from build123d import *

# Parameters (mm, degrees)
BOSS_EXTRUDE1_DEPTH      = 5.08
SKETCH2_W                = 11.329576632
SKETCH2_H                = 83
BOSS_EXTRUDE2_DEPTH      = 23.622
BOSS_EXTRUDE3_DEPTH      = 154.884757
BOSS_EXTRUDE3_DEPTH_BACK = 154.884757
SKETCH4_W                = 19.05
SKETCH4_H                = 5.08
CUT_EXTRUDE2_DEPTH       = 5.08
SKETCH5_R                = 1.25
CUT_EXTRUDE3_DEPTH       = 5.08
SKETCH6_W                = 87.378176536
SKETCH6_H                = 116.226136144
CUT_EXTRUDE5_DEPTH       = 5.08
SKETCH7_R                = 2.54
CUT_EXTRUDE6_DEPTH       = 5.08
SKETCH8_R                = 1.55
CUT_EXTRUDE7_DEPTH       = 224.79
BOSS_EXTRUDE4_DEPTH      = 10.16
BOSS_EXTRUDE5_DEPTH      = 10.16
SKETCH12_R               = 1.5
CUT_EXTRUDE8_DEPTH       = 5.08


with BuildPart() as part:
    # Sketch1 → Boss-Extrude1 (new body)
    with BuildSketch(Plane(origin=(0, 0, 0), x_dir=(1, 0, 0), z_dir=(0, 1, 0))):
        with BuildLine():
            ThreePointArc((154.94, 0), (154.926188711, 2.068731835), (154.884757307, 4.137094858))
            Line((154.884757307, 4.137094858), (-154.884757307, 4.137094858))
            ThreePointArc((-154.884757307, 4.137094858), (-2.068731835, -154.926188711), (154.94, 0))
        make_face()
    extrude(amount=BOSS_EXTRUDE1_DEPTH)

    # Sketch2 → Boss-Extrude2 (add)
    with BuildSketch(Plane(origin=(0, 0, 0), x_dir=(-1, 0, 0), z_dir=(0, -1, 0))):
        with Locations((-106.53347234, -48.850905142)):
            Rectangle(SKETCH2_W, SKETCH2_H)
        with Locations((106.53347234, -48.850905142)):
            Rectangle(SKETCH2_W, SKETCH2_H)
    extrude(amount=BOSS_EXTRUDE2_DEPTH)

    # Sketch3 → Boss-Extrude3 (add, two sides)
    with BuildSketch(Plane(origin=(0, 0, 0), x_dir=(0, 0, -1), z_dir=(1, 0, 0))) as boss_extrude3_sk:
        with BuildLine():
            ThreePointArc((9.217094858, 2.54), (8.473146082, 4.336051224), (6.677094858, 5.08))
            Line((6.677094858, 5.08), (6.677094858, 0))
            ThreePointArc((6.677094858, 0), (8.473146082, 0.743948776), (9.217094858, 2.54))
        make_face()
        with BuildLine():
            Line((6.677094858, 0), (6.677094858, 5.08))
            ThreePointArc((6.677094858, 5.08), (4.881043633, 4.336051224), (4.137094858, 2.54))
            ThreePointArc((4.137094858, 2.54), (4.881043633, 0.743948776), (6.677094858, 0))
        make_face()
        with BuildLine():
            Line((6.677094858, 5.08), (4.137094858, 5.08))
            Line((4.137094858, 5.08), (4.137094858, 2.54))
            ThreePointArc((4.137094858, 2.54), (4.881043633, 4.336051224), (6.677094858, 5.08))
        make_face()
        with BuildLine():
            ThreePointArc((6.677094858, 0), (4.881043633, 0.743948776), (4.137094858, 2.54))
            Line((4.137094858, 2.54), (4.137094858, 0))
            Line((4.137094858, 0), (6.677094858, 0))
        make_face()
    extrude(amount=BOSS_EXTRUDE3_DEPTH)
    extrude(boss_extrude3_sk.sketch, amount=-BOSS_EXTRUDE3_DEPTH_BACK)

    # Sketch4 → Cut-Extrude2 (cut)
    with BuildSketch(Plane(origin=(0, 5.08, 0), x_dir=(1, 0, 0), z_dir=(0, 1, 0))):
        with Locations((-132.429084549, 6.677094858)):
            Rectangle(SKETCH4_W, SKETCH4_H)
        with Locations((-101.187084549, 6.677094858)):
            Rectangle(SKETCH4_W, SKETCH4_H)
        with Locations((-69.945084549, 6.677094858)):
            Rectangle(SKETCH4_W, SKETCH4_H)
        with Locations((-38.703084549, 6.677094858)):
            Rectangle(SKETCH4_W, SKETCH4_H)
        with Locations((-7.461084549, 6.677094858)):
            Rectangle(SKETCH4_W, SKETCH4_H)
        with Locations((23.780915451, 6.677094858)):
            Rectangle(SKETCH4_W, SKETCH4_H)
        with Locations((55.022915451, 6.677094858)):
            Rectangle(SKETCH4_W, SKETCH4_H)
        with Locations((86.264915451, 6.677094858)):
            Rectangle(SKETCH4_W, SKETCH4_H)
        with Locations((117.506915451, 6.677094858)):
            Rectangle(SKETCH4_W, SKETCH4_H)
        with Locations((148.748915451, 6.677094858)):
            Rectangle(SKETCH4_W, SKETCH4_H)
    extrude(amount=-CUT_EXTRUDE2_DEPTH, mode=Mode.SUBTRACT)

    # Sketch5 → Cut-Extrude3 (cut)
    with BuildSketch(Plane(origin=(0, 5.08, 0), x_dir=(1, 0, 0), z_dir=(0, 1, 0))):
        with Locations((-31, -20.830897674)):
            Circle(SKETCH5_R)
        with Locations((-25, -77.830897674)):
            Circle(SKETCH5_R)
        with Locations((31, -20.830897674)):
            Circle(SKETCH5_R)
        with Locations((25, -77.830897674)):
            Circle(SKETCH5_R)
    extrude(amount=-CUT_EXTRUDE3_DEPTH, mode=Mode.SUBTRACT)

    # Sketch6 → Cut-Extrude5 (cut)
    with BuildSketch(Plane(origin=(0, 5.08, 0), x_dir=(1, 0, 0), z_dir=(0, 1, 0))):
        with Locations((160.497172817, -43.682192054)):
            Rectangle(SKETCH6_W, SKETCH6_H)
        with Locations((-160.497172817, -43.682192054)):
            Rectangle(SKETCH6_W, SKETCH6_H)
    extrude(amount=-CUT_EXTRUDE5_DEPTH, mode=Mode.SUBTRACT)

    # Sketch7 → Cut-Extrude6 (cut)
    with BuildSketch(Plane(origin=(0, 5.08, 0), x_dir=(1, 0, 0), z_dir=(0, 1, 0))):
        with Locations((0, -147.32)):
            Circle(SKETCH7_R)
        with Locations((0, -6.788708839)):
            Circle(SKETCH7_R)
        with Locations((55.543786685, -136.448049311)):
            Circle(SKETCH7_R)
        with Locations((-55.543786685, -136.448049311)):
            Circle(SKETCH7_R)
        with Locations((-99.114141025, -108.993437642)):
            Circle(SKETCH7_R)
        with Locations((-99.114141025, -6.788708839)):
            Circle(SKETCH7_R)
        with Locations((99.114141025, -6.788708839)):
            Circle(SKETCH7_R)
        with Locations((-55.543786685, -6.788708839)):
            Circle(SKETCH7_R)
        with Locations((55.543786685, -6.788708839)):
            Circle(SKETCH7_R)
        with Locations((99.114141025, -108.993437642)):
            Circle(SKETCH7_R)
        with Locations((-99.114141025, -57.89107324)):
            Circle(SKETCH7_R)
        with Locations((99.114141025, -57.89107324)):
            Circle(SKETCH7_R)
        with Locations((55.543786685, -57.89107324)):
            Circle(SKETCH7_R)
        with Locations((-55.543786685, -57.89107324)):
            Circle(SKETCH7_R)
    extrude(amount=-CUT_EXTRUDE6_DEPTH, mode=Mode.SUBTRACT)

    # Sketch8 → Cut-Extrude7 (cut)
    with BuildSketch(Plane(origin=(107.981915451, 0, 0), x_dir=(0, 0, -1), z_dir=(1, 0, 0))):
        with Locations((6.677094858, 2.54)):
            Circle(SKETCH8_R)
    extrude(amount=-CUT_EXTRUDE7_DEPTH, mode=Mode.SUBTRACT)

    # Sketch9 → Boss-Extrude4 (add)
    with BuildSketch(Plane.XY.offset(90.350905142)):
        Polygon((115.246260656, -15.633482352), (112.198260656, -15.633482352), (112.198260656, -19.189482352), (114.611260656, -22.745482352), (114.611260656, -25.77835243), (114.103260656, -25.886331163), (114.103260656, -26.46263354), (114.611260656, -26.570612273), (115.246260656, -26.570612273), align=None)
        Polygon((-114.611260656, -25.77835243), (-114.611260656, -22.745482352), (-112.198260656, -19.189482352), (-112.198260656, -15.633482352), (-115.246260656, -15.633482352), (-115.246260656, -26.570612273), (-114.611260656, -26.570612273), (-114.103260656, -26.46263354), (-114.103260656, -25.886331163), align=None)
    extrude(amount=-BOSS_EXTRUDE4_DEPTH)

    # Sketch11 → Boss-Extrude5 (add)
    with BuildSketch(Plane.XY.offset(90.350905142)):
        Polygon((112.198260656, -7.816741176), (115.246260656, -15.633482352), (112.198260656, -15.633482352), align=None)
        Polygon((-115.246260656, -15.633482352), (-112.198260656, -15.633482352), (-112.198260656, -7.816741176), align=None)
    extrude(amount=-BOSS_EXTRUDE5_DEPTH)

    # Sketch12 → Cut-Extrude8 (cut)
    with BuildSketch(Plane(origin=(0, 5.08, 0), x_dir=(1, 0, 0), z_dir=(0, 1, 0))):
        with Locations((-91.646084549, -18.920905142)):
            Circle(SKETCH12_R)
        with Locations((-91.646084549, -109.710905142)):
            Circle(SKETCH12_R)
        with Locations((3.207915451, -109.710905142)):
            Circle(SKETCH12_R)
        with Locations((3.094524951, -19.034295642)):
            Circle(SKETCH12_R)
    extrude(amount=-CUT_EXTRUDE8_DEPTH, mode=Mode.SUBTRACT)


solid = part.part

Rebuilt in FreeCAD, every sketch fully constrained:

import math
import FreeCAD as App
import Part
import Sketcher
from FreeCAD import Vector
Q = App.Units.Quantity

doc = App.newDocument("Part")
body = doc.addObject("PartDesign::Body", "Body")

# Sketch on XZ plane
sketch1 = body.newObject("Sketcher::SketchObject", "Sketch")
sketch1.AttachmentSupport = (doc.getObject("XZ_Plane"), [""])
sketch1.MapMode = "FlatFace"
sketch1.addGeometry(Part.ArcOfCircle(Part.Circle(Vector(0, 0, 0), Vector(0, 0, 1), 154.9), math.radians(-1.53), math.radians(0)), False)
sketch1.addGeometry(Part.LineSegment(Vector(154.9, -4.1, 0), Vector(-154.9, -4.1, 0)), False)
sketch1.addGeometry(Part.ArcOfCircle(Part.Circle(Vector(0, 0, 0), Vector(0, 0, 1), 154.9), math.radians(0), math.radians(182)), False)
sketch1.addConstraint(Sketcher.Constraint("Coincident", 0, 1, 1, 1))
sketch1.addConstraint(Sketcher.Constraint("Coincident", 1, 2, 2, 2))
sketch1.addConstraint(Sketcher.Constraint("Tangent", 2, 1, 0, 2))
sketch1.addConstraint(Sketcher.Constraint("Horizontal", 1))
sketch1.addConstraint(Sketcher.Constraint("Coincident", 0, 3, -1, 1))
sketch1.addConstraint(Sketcher.Constraint("Equal", 0, 2))
sketch1.addConstraint(Sketcher.Constraint("PointOnObject", 2, 1, -1))
sketch1.addConstraint(Sketcher.Constraint("Radius", 0, Q("6.1 in")))
sketch1.addConstraint(Sketcher.Constraint("DistanceX", 1, 2, 1, 1, Q("309.769515 mm")))
pad1 = body.newObject("PartDesign::Pad", "Pad")
pad1.Profile = sketch1
pad1.Length = Q("0.2 in")
pad1.Reversed = True

# Sketch on XZ plane
sketch2 = body.newObject("Sketcher::SketchObject", "Sketch001")
sketch2.AttachmentSupport = (doc.getObject("XZ_Plane"), [""])
sketch2.MapMode = "FlatFace"
sketch2.addGeometry(Part.LineSegment(Vector(112, 7, 0), Vector(112, 90, 0)), False)
sketch2.addGeometry(Part.LineSegment(Vector(112, 90, 0), Vector(101, 90, 0)), False)
sketch2.addGeometry(Part.LineSegment(Vector(101, 90, 0), Vector(101, 7, 0)), False)
sketch2.addGeometry(Part.LineSegment(Vector(101, 7, 0), Vector(112, 7, 0)), False)
sketch2.addGeometry(Part.LineSegment(Vector(-101, 7, 0), Vector(-101, 90, 0)), False)
sketch2.addGeometry(Part.LineSegment(Vector(-101, 90, 0), Vector(-112, 90, 0)), False)
sketch2.addGeometry(Part.LineSegment(Vector(-112, 90, 0), Vector(-112, 7, 0)), False)
sketch2.addGeometry(Part.LineSegment(Vector(-112, 7, 0), Vector(-101, 7, 0)), False)
sketch2.addConstraint(Sketcher.Constraint("Coincident", 0, 2, 1, 1))
sketch2.addConstraint(Sketcher.Constraint("Coincident", 1, 2, 2, 1))
sketch2.addConstraint(Sketcher.Constraint("Coincident", 2, 2, 3, 1))
sketch2.addConstraint(Sketcher.Constraint("Coincident", 3, 2, 0, 1))
sketch2.addConstraint(Sketcher.Constraint("Coincident", 4, 2, 5, 1))
sketch2.addConstraint(Sketcher.Constraint("Coincident", 5, 2, 6, 1))
sketch2.addConstraint(Sketcher.Constraint("Coincident", 6, 2, 7, 1))
sketch2.addConstraint(Sketcher.Constraint("Coincident", 7, 2, 4, 1))
sketch2.addConstraint(Sketcher.Constraint("Vertical", 0))
sketch2.addConstraint(Sketcher.Constraint("Horizontal", 1))
sketch2.addConstraint(Sketcher.Constraint("Vertical", 2))
sketch2.addConstraint(Sketcher.Constraint("Horizontal", 3))
sketch2.addConstraint(Sketcher.Constraint("Vertical", 4))
sketch2.addConstraint(Sketcher.Constraint("Horizontal", 5))
sketch2.addConstraint(Sketcher.Constraint("Vertical", 6))
sketch2.addConstraint(Sketcher.Constraint("Horizontal", 7))
sketch2.addConstraint(Sketcher.Constraint("Symmetric", 1, 2, 4, 2, -2))
sketch2.addConstraint(Sketcher.Constraint("Symmetric", 3, 2, 6, 2, -2))
sketch2.addConstraint(Sketcher.Constraint("DistanceY", 0, 1, 0, 2, Q("83 mm")))
sketch2.addConstraint(Sketcher.Constraint("DistanceX", 1, 2, 1, 1, Q("11.329577 mm")))
sketch2.addConstraint(Sketcher.Constraint("DistanceX", -1, 1, 0, 2, Q("112.198261 mm")))
sketch2.addConstraint(Sketcher.Constraint("DistanceY", -1, 1, 0, 2, Q("90.350905 mm")))
pad2 = body.newObject("PartDesign::Pad", "Pad001")
pad2.Profile = sketch2
pad2.Length = Q("0.93 in")

# Sketch on YZ plane
sketch3 = body.newObject("Sketcher::SketchObject", "Sketch002")
sketch3.AttachmentSupport = (doc.getObject("YZ_Plane"), [""])
sketch3.MapMode = "FlatFace"
sketch3.addGeometry(Part.ArcOfCircle(Part.Circle(Vector(2.5, -6.7, 0), Vector(0, 0, 1), 2.5), math.radians(-90), math.radians(0)), False)
sketch3.addGeometry(Part.LineSegment(Vector(5.1, -6.7, 0), Vector(5.1, -4.1, 0)), False)
sketch3.addGeometry(Part.LineSegment(Vector(5.1, -4.1, 0), Vector(0, -4.1, 0)), False)
sketch3.addGeometry(Part.LineSegment(Vector(0, -4.1, 0), Vector(0, -6.7, 0)), False)
sketch3.addGeometry(Part.ArcOfCircle(Part.Circle(Vector(2.5, -6.7, 0), Vector(0, 0, 1), 2.5), math.radians(-180), math.radians(-90)), False)
sketch3.addConstraint(Sketcher.Constraint("Tangent", 0, 2, 1, 1))
sketch3.addConstraint(Sketcher.Constraint("Coincident", 1, 2, 2, 1))
sketch3.addConstraint(Sketcher.Constraint("Coincident", 2, 2, 3, 1))
sketch3.addConstraint(Sketcher.Constraint("Tangent", 3, 2, 4, 1))
sketch3.addConstraint(Sketcher.Constraint("Tangent", 4, 2, 0, 1))
sketch3.addConstraint(Sketcher.Constraint("Vertical", 1))
sketch3.addConstraint(Sketcher.Constraint("Horizontal", 2))
sketch3.addConstraint(Sketcher.Constraint("Vertical", 3))
sketch3.addConstraint(Sketcher.Constraint("Equal", 0, 4))
sketch3.addConstraint(Sketcher.Constraint("PointOnObject", 2, 2, -2))
sketch3.addConstraint(Sketcher.Constraint("Vertical", 0, 3, 4, 2))
sketch3.addConstraint(Sketcher.Constraint("Radius", 0, Q("0.1 in")))
sketch3.addConstraint(Sketcher.Constraint("DistanceY", 1, 1, 1, 2, Q("0.1 in")))
sketch3.addConstraint(Sketcher.Constraint("DistanceY", 0, 3, -1, 1, Q("6.677095 mm")))
pad3 = body.newObject("PartDesign::Pad", "Pad002")
pad3.Profile = sketch3
pad3.Type = "TwoLengths"
pad3.Length = 154.884757
pad3.Length2 = 154.884757

# Sketch on XZ plane
sketch4 = body.newObject("Sketcher::SketchObject", "Sketch003")
sketch4.AttachmentSupport = (doc.getObject("XZ_Plane"), [""])
sketch4.MapMode = "FlatFace"
sketch4.AttachmentOffset = App.Placement(Vector(0, 0, -0.2 * 25.4), App.Rotation())
sketch4.addGeometry(Part.LineSegment(Vector(-142, -9, 0), Vector(-142, -4, 0)), False)
sketch4.addGeometry(Part.LineSegment(Vector(-142, -4, 0), Vector(-123, -4, 0)), False)
sketch4.addGeometry(Part.LineSegment(Vector(-123, -4, 0), Vector(-123, -9, 0)), False)
sketch4.addGeometry(Part.LineSegment(Vector(-123, -9, 0), Vector(-142, -9, 0)), False)
sketch4.addGeometry(Part.LineSegment(Vector(-111, -9, 0), Vector(-111, -4, 0)), False)
sketch4.addGeometry(Part.LineSegment(Vector(-111, -4, 0), Vector(-92, -4, 0)), False)
sketch4.addGeometry(Part.LineSegment(Vector(-92, -4, 0), Vector(-92, -9, 0)), False)
sketch4.addGeometry(Part.LineSegment(Vector(-92, -9, 0), Vector(-111, -9, 0)), False)
sketch4.addGeometry(Part.LineSegment(Vector(-79, -9, 0), Vector(-79, -4, 0)), False)
sketch4.addGeometry(Part.LineSegment(Vector(-79, -4, 0), Vector(-60, -4, 0)), False)
sketch4.addGeometry(Part.LineSegment(Vector(-60, -4, 0), Vector(-60, -9, 0)), False)
sketch4.addGeometry(Part.LineSegment(Vector(-60, -9, 0), Vector(-79, -9, 0)), False)
sketch4.addGeometry(Part.LineSegment(Vector(-48, -9, 0), Vector(-48, -4, 0)), False)
sketch4.addGeometry(Part.LineSegment(Vector(-48, -4, 0), Vector(-29, -4, 0)), False)
sketch4.addGeometry(Part.LineSegment(Vector(-29, -4, 0), Vector(-29, -9, 0)), False)
sketch4.addGeometry(Part.LineSegment(Vector(-29, -9, 0), Vector(-48, -9, 0)), False)
sketch4.addGeometry(Part.LineSegment(Vector(-17, -9, 0), Vector(-17, -4, 0)), False)
sketch4.addGeometry(Part.LineSegment(Vector(-17, -4, 0), Vector(2, -4, 0)), False)
sketch4.addGeometry(Part.LineSegment(Vector(2, -4, 0), Vector(2, -9, 0)), False)
sketch4.addGeometry(Part.LineSegment(Vector(2, -9, 0), Vector(-17, -9, 0)), False)
sketch4.addGeometry(Part.LineSegment(Vector(14, -9, 0), Vector(14, -4, 0)), False)
sketch4.addGeometry(Part.LineSegment(Vector(14, -4, 0), Vector(33, -4, 0)), False)
sketch4.addGeometry(Part.LineSegment(Vector(33, -4, 0), Vector(33, -9, 0)), False)
sketch4.addGeometry(Part.LineSegment(Vector(33, -9, 0), Vector(14, -9, 0)), False)
sketch4.addGeometry(Part.LineSegment(Vector(45, -9, 0), Vector(45, -4, 0)), False)
sketch4.addGeometry(Part.LineSegment(Vector(45, -4, 0), Vector(65, -4, 0)), False)
sketch4.addGeometry(Part.LineSegment(Vector(65, -4, 0), Vector(65, -9, 0)), False)
sketch4.addGeometry(Part.LineSegment(Vector(65, -9, 0), Vector(45, -9, 0)), False)
sketch4.addGeometry(Part.LineSegment(Vector(77, -9, 0), Vector(77, -4, 0)), False)
sketch4.addGeometry(Part.LineSegment(Vector(77, -4, 0), Vector(96, -4, 0)), False)
sketch4.addGeometry(Part.LineSegment(Vector(96, -4, 0), Vector(96, -9, 0)), False)
sketch4.addGeometry(Part.LineSegment(Vector(96, -9, 0), Vector(77, -9, 0)), False)
sketch4.addGeometry(Part.LineSegment(Vector(108, -9, 0), Vector(108, -4, 0)), False)
sketch4.addGeometry(Part.LineSegment(Vector(108, -4, 0), Vector(127, -4, 0)), False)
sketch4.addGeometry(Part.LineSegment(Vector(127, -4, 0), Vector(127, -9, 0)), False)
sketch4.addGeometry(Part.LineSegment(Vector(127, -9, 0), Vector(108, -9, 0)), False)
sketch4.addGeometry(Part.LineSegment(Vector(139, -9, 0), Vector(139, -4, 0)), False)
sketch4.addGeometry(Part.LineSegment(Vector(139, -4, 0), Vector(158, -4, 0)), False)
sketch4.addGeometry(Part.LineSegment(Vector(158, -4, 0), Vector(158, -9, 0)), False)
sketch4.addGeometry(Part.LineSegment(Vector(158, -9, 0), Vector(139, -9, 0)), False)
sketch4.addConstraint(Sketcher.Constraint("Coincident", 0, 2, 1, 1))
sketch4.addConstraint(Sketcher.Constraint("Coincident", 1, 2, 2, 1))
sketch4.addConstraint(Sketcher.Constraint("Coincident", 2, 2, 3, 1))
sketch4.addConstraint(Sketcher.Constraint("Coincident", 3, 2, 0, 1))
sketch4.addConstraint(Sketcher.Constraint("Coincident", 4, 2, 5, 1))
sketch4.addConstraint(Sketcher.Constraint("Coincident", 5, 2, 6, 1))
sketch4.addConstraint(Sketcher.Constraint("Coincident", 6, 2, 7, 1))
sketch4.addConstraint(Sketcher.Constraint("Coincident", 7, 2, 4, 1))
sketch4.addConstraint(Sketcher.Constraint("Coincident", 8, 2, 9, 1))
sketch4.addConstraint(Sketcher.Constraint("Coincident", 9, 2, 10, 1))
sketch4.addConstraint(Sketcher.Constraint("Coincident", 10, 2, 11, 1))
sketch4.addConstraint(Sketcher.Constraint("Coincident", 11, 2, 8, 1))
sketch4.addConstraint(Sketcher.Constraint("Coincident", 12, 2, 13, 1))
sketch4.addConstraint(Sketcher.Constraint("Coincident", 13, 2, 14, 1))
sketch4.addConstraint(Sketcher.Constraint("Coincident", 14, 2, 15, 1))
sketch4.addConstraint(Sketcher.Constraint("Coincident", 15, 2, 12, 1))
sketch4.addConstraint(Sketcher.Constraint("Coincident", 16, 2, 17, 1))
sketch4.addConstraint(Sketcher.Constraint("Coincident", 17, 2, 18, 1))
sketch4.addConstraint(Sketcher.Constraint("Coincident", 18, 2, 19, 1))
sketch4.addConstraint(Sketcher.Constraint("Coincident", 19, 2, 16, 1))
sketch4.addConstraint(Sketcher.Constraint("Coincident", 20, 2, 21, 1))
sketch4.addConstraint(Sketcher.Constraint("Coincident", 21, 2, 22, 1))
sketch4.addConstraint(Sketcher.Constraint("Coincident", 22, 2, 23, 1))
sketch4.addConstraint(Sketcher.Constraint("Coincident", 23, 2, 20, 1))
sketch4.addConstraint(Sketcher.Constraint("Coincident", 24, 2, 25, 1))
sketch4.addConstraint(Sketcher.Constraint("Coincident", 25, 2, 26, 1))
sketch4.addConstraint(Sketcher.Constraint("Coincident", 26, 2, 27, 1))
sketch4.addConstraint(Sketcher.Constraint("Coincident", 27, 2, 24, 1))
sketch4.addConstraint(Sketcher.Constraint("Coincident", 28, 2, 29, 1))
sketch4.addConstraint(Sketcher.Constraint("Coincident", 29, 2, 30, 1))
sketch4.addConstraint(Sketcher.Constraint("Coincident", 30, 2, 31, 1))
sketch4.addConstraint(Sketcher.Constraint("Coincident", 31, 2, 28, 1))
sketch4.addConstraint(Sketcher.Constraint("Coincident", 32, 2, 33, 1))
sketch4.addConstraint(Sketcher.Constraint("Coincident", 33, 2, 34, 1))
sketch4.addConstraint(Sketcher.Constraint("Coincident", 34, 2, 35, 1))
sketch4.addConstraint(Sketcher.Constraint("Coincident", 35, 2, 32, 1))
sketch4.addConstraint(Sketcher.Constraint("Coincident", 36, 2, 37, 1))
sketch4.addConstraint(Sketcher.Constraint("Coincident", 37, 2, 38, 1))
sketch4.addConstraint(Sketcher.Constraint("Coincident", 38, 2, 39, 1))
sketch4.addConstraint(Sketcher.Constraint("Coincident", 39, 2, 36, 1))
sketch4.addConstraint(Sketcher.Constraint("Vertical", 0))
sketch4.addConstraint(Sketcher.Constraint("Horizontal", 1))
sketch4.addConstraint(Sketcher.Constraint("Vertical", 2))
sketch4.addConstraint(Sketcher.Constraint("Horizontal", 3))
sketch4.addConstraint(Sketcher.Constraint("Vertical", 4))
sketch4.addConstraint(Sketcher.Constraint("Horizontal", 5))
sketch4.addConstraint(Sketcher.Constraint("Vertical", 6))
sketch4.addConstraint(Sketcher.Constraint("Horizontal", 7))
sketch4.addConstraint(Sketcher.Constraint("Vertical", 8))
sketch4.addConstraint(Sketcher.Constraint("Horizontal", 9))
sketch4.addConstraint(Sketcher.Constraint("Vertical", 10))
sketch4.addConstraint(Sketcher.Constraint("Horizontal", 11))
sketch4.addConstraint(Sketcher.Constraint("Vertical", 12))
sketch4.addConstraint(Sketcher.Constraint("Horizontal", 13))
sketch4.addConstraint(Sketcher.Constraint("Vertical", 14))
sketch4.addConstraint(Sketcher.Constraint("Horizontal", 15))
sketch4.addConstraint(Sketcher.Constraint("Vertical", 16))
sketch4.addConstraint(Sketcher.Constraint("Horizontal", 17))
sketch4.addConstraint(Sketcher.Constraint("Vertical", 18))
sketch4.addConstraint(Sketcher.Constraint("Horizontal", 19))
sketch4.addConstraint(Sketcher.Constraint("Vertical", 20))
sketch4.addConstraint(Sketcher.Constraint("Horizontal", 21))
sketch4.addConstraint(Sketcher.Constraint("Vertical", 22))
sketch4.addConstraint(Sketcher.Constraint("Horizontal", 23))
sketch4.addConstraint(Sketcher.Constraint("Vertical", 24))
sketch4.addConstraint(Sketcher.Constraint("Horizontal", 25))
sketch4.addConstraint(Sketcher.Constraint("Vertical", 26))
sketch4.addConstraint(Sketcher.Constraint("Horizontal", 27))
sketch4.addConstraint(Sketcher.Constraint("Vertical", 28))
sketch4.addConstraint(Sketcher.Constraint("Horizontal", 29))
sketch4.addConstraint(Sketcher.Constraint("Vertical", 30))
sketch4.addConstraint(Sketcher.Constraint("Horizontal", 31))
sketch4.addConstraint(Sketcher.Constraint("Vertical", 32))
sketch4.addConstraint(Sketcher.Constraint("Horizontal", 33))
sketch4.addConstraint(Sketcher.Constraint("Vertical", 34))
sketch4.addConstraint(Sketcher.Constraint("Horizontal", 35))
sketch4.addConstraint(Sketcher.Constraint("Vertical", 36))
sketch4.addConstraint(Sketcher.Constraint("Horizontal", 37))
sketch4.addConstraint(Sketcher.Constraint("Vertical", 38))
sketch4.addConstraint(Sketcher.Constraint("Horizontal", 39))
sketch4.addConstraint(Sketcher.Constraint("Horizontal", 1, 2, 4, 2))
sketch4.addConstraint(Sketcher.Constraint("Horizontal", 3, 2, 6, 2))
sketch4.addConstraint(Sketcher.Constraint("Horizontal", 5, 2, 8, 2))
sketch4.addConstraint(Sketcher.Constraint("Horizontal", 7, 2, 10, 2))
sketch4.addConstraint(Sketcher.Constraint("Horizontal", 9, 2, 12, 2))
sketch4.addConstraint(Sketcher.Constraint("Horizontal", 11, 2, 14, 2))
sketch4.addConstraint(Sketcher.Constraint("Horizontal", 13, 2, 16, 2))
sketch4.addConstraint(Sketcher.Constraint("Horizontal", 15, 2, 18, 2))
sketch4.addConstraint(Sketcher.Constraint("Horizontal", 17, 2, 20, 2))
sketch4.addConstraint(Sketcher.Constraint("Horizontal", 19, 2, 22, 2))
sketch4.addConstraint(Sketcher.Constraint("Horizontal", 21, 2, 24, 2))
sketch4.addConstraint(Sketcher.Constraint("Horizontal", 23, 2, 26, 2))
sketch4.addConstraint(Sketcher.Constraint("Horizontal", 25, 2, 28, 2))
sketch4.addConstraint(Sketcher.Constraint("Horizontal", 27, 2, 30, 2))
sketch4.addConstraint(Sketcher.Constraint("Horizontal", 29, 2, 32, 2))
sketch4.addConstraint(Sketcher.Constraint("Horizontal", 31, 2, 34, 2))
sketch4.addConstraint(Sketcher.Constraint("Horizontal", 33, 2, 36, 2))
sketch4.addConstraint(Sketcher.Constraint("Horizontal", 35, 2, 38, 2))
sketch4.addConstraint(Sketcher.Constraint("Equal", 3, 5))
sketch4.addConstraint(Sketcher.Constraint("Equal", 7, 9))
sketch4.addConstraint(Sketcher.Constraint("Equal", 11, 13))
sketch4.addConstraint(Sketcher.Constraint("Equal", 15, 17))
sketch4.addConstraint(Sketcher.Constraint("Equal", 19, 21))
sketch4.addConstraint(Sketcher.Constraint("Equal", 23, 25))
sketch4.addConstraint(Sketcher.Constraint("Equal", 27, 29))
sketch4.addConstraint(Sketcher.Constraint("Equal", 31, 33))
sketch4.addConstraint(Sketcher.Constraint("Equal", 35, 37))
sketch4.addConstraint(Sketcher.Constraint("DistanceY", 0, 1, 0, 2, Q("0.2 in")))
sketch4.addConstraint(Sketcher.Constraint("DistanceX", 1, 1, 1, 2, Q("0.75 in")))
sketch4.addConstraint(Sketcher.Constraint("DistanceX", 1, 2, 4, 2, Q("0.48 in")))
sketch4.addConstraint(Sketcher.Constraint("DistanceX", 5, 2, 8, 2, Q("0.48 in")))
sketch4.addConstraint(Sketcher.Constraint("DistanceX", 9, 2, 12, 2, Q("0.48 in")))
sketch4.addConstraint(Sketcher.Constraint("DistanceX", 13, 2, 16, 2, Q("0.48 in")))
sketch4.addConstraint(Sketcher.Constraint("DistanceX", 17, 2, 20, 2, Q("0.48 in")))
sketch4.addConstraint(Sketcher.Constraint("DistanceX", 21, 2, 24, 2, Q("0.48 in")))
sketch4.addConstraint(Sketcher.Constraint("DistanceX", 25, 2, 28, 2, Q("0.48 in")))
sketch4.addConstraint(Sketcher.Constraint("DistanceX", 29, 2, 32, 2, Q("0.48 in")))
sketch4.addConstraint(Sketcher.Constraint("DistanceX", 33, 2, 36, 2, Q("0.48 in")))
sketch4.addConstraint(Sketcher.Constraint("DistanceX", 0, 2, -1, 1, Q("141.954085 mm")))
sketch4.addConstraint(Sketcher.Constraint("DistanceY", 0, 2, -1, 1, Q("4.137095 mm")))
pocket1 = body.newObject("PartDesign::Pocket", "Pocket")
pocket1.Profile = sketch4
pocket1.Length = Q("0.2 in")
pocket1.Reversed = True

# Sketch on XZ plane
sketch5 = body.newObject("Sketcher::SketchObject", "Sketch004")
sketch5.AttachmentSupport = (doc.getObject("XZ_Plane"), [""])
sketch5.MapMode = "FlatFace"
sketch5.AttachmentOffset = App.Placement(Vector(0, 0, -0.2 * 25.4), App.Rotation())
sketch5.addGeometry(Part.Circle(Vector(-31, 20.8, 0), Vector(0, 0, 1), 1.2), False)
sketch5.addGeometry(Part.Circle(Vector(-25, 77.8, 0), Vector(0, 0, 1), 1.2), False)
sketch5.addGeometry(Part.Circle(Vector(31, 20.8, 0), Vector(0, 0, 1), 1.2), False)
sketch5.addGeometry(Part.Circle(Vector(25, 77.8, 0), Vector(0, 0, 1), 1.2), False)
sketch5.addConstraint(Sketcher.Constraint("Equal", 0, 1))
sketch5.addConstraint(Sketcher.Constraint("Equal", 1, 2))
sketch5.addConstraint(Sketcher.Constraint("Equal", 2, 3))
sketch5.addConstraint(Sketcher.Constraint("Symmetric", 0, 3, 2, 3, -2))
sketch5.addConstraint(Sketcher.Constraint("Symmetric", 1, 3, 3, 3, -2))
sketch5.addConstraint(Sketcher.Constraint("Diameter", 0, Q("2.5 mm")))
sketch5.addConstraint(Sketcher.Constraint("DistanceX", 0, 3, -1, 1, Q("31 mm")))
sketch5.addConstraint(Sketcher.Constraint("DistanceX", 1, 3, -1, 1, Q("25 mm")))
sketch5.addConstraint(Sketcher.Constraint("DistanceY", 0, 3, 1, 3, Q("57 mm")))
sketch5.addConstraint(Sketcher.Constraint("DistanceY", -1, 1, 0, 3, Q("20.830898 mm")))
pocket2 = body.newObject("PartDesign::Pocket", "Pocket001")
pocket2.Profile = sketch5
pocket2.Length = Q("0.2 in")
pocket2.Reversed = True

# Sketch on XZ plane
sketch6 = body.newObject("Sketcher::SketchObject", "Sketch005")
sketch6.AttachmentSupport = (doc.getObject("XZ_Plane"), [""])
sketch6.MapMode = "FlatFace"
sketch6.AttachmentOffset = App.Placement(Vector(0, 0, -0.2 * 25.4), App.Rotation())
sketch6.addGeometry(Part.LineSegment(Vector(117, -14, 0), Vector(117, 102, 0)), False)
sketch6.addGeometry(Part.LineSegment(Vector(117, 102, 0), Vector(204, 102, 0)), False)
sketch6.addGeometry(Part.LineSegment(Vector(204, 102, 0), Vector(204, -14, 0)), False)
sketch6.addGeometry(Part.LineSegment(Vector(204, -14, 0), Vector(117, -14, 0)), False)
sketch6.addGeometry(Part.LineSegment(Vector(-204, -14, 0), Vector(-204, 102, 0)), False)
sketch6.addGeometry(Part.LineSegment(Vector(-204, 102, 0), Vector(-117, 102, 0)), False)
sketch6.addGeometry(Part.LineSegment(Vector(-117, 102, 0), Vector(-117, -14, 0)), False)
sketch6.addGeometry(Part.LineSegment(Vector(-117, -14, 0), Vector(-204, -14, 0)), False)
sketch6.addConstraint(Sketcher.Constraint("Coincident", 0, 2, 1, 1))
sketch6.addConstraint(Sketcher.Constraint("Coincident", 1, 2, 2, 1))
sketch6.addConstraint(Sketcher.Constraint("Coincident", 2, 2, 3, 1))
sketch6.addConstraint(Sketcher.Constraint("Coincident", 3, 2, 0, 1))
sketch6.addConstraint(Sketcher.Constraint("Coincident", 4, 2, 5, 1))
sketch6.addConstraint(Sketcher.Constraint("Coincident", 5, 2, 6, 1))
sketch6.addConstraint(Sketcher.Constraint("Coincident", 6, 2, 7, 1))
sketch6.addConstraint(Sketcher.Constraint("Coincident", 7, 2, 4, 1))
sketch6.addConstraint(Sketcher.Constraint("Vertical", 0))
sketch6.addConstraint(Sketcher.Constraint("Horizontal", 1))
sketch6.addConstraint(Sketcher.Constraint("Vertical", 2))
sketch6.addConstraint(Sketcher.Constraint("Horizontal", 3))
sketch6.addConstraint(Sketcher.Constraint("Vertical", 4))
sketch6.addConstraint(Sketcher.Constraint("Horizontal", 5))
sketch6.addConstraint(Sketcher.Constraint("Vertical", 6))
sketch6.addConstraint(Sketcher.Constraint("Horizontal", 7))
sketch6.addConstraint(Sketcher.Constraint("Symmetric", 1, 2, 4, 2, -2))
sketch6.addConstraint(Sketcher.Constraint("Symmetric", 3, 2, 6, 2, -2))
sketch6.addConstraint(Sketcher.Constraint("DistanceX", 1, 1, 1, 2, Q("87.378177 mm")))
sketch6.addConstraint(Sketcher.Constraint("DistanceY", 0, 1, 0, 2, Q("116.226136 mm")))
sketch6.addConstraint(Sketcher.Constraint("DistanceY", -1, 1, 0, 2, Q("101.79526 mm")))
sketch6.addConstraint(Sketcher.Constraint("DistanceX", -1, 1, 1, 2, Q("204.186261 mm")))
pocket3 = body.newObject("PartDesign::Pocket", "Pocket002")
pocket3.Profile = sketch6
pocket3.Length = Q("0.2 in")
pocket3.Reversed = True

# Sketch on XZ plane
sketch7 = body.newObject("Sketcher::SketchObject", "Sketch006")
sketch7.AttachmentSupport = (doc.getObject("XZ_Plane"), [""])
sketch7.MapMode = "FlatFace"
sketch7.AttachmentOffset = App.Placement(Vector(0, 0, -0.2 * 25.4), App.Rotation())
sketch7.addGeometry(Part.Circle(Vector(0, 147.3, 0), Vector(0, 0, 1), 2.5), False)
sketch7.addGeometry(Part.Circle(Vector(0, 6.8, 0), Vector(0, 0, 1), 2.5), False)
sketch7.addGeometry(Part.Circle(Vector(55.5, 136.4, 0), Vector(0, 0, 1), 2.5), False)
sketch7.addGeometry(Part.Circle(Vector(-55.5, 136.4, 0), Vector(0, 0, 1), 2.5), False)
sketch7.addGeometry(Part.Circle(Vector(-99.1, 109, 0), Vector(0, 0, 1), 2.5), False)
sketch7.addGeometry(Part.Circle(Vector(-99.1, 6.8, 0), Vector(0, 0, 1), 2.5), False)
sketch7.addGeometry(Part.Circle(Vector(99.1, 6.8, 0), Vector(0, 0, 1), 2.5), False)
sketch7.addGeometry(Part.Circle(Vector(-55.5, 6.8, 0), Vector(0, 0, 1), 2.5), False)
sketch7.addGeometry(Part.Circle(Vector(55.5, 6.8, 0), Vector(0, 0, 1), 2.5), False)
sketch7.addGeometry(Part.Circle(Vector(99.1, 109, 0), Vector(0, 0, 1), 2.5), False)
sketch7.addGeometry(Part.Circle(Vector(-99.1, 57.9, 0), Vector(0, 0, 1), 2.5), False)
sketch7.addGeometry(Part.Circle(Vector(99.1, 57.9, 0), Vector(0, 0, 1), 2.5), False)
sketch7.addGeometry(Part.Circle(Vector(55.5, 57.9, 0), Vector(0, 0, 1), 2.5), False)
sketch7.addGeometry(Part.Circle(Vector(-55.5, 57.9, 0), Vector(0, 0, 1), 2.5), False)
sketch7.addConstraint(Sketcher.Constraint("Equal", 0, 1))
sketch7.addConstraint(Sketcher.Constraint("Equal", 1, 2))
sketch7.addConstraint(Sketcher.Constraint("Equal", 2, 3))
sketch7.addConstraint(Sketcher.Constraint("Equal", 3, 4))
sketch7.addConstraint(Sketcher.Constraint("Equal", 4, 5))
sketch7.addConstraint(Sketcher.Constraint("Equal", 5, 6))
sketch7.addConstraint(Sketcher.Constraint("Equal", 6, 7))
sketch7.addConstraint(Sketcher.Constraint("Equal", 7, 8))
sketch7.addConstraint(Sketcher.Constraint("Equal", 8, 9))
sketch7.addConstraint(Sketcher.Constraint("Equal", 9, 10))
sketch7.addConstraint(Sketcher.Constraint("Equal", 10, 11))
sketch7.addConstraint(Sketcher.Constraint("Equal", 11, 12))
sketch7.addConstraint(Sketcher.Constraint("Equal", 12, 13))
sketch7.addConstraint(Sketcher.Constraint("Symmetric", 2, 3, 3, 3, -2))
sketch7.addConstraint(Sketcher.Constraint("Symmetric", 5, 3, 6, 3, -2))
sketch7.addConstraint(Sketcher.Constraint("Symmetric", 7, 3, 8, 3, -2))
sketch7.addConstraint(Sketcher.Constraint("Symmetric", 4, 3, 9, 3, -2))
sketch7.addConstraint(Sketcher.Constraint("Symmetric", 10, 3, 11, 3, -2))
sketch7.addConstraint(Sketcher.Constraint("Symmetric", 12, 3, 13, 3, -2))
sketch7.addConstraint(Sketcher.Constraint("PointOnObject", 0, 3, -2))
sketch7.addConstraint(Sketcher.Constraint("PointOnObject", 1, 3, -2))
sketch7.addConstraint(Sketcher.Constraint("Horizontal", 1, 3, 5, 3))
sketch7.addConstraint(Sketcher.Constraint("Horizontal", 6, 3, 7, 3))
sketch7.addConstraint(Sketcher.Constraint("Horizontal", 11, 3, 12, 3))
sketch7.addConstraint(Sketcher.Constraint("Vertical", 4, 3, 5, 3))
sketch7.addConstraint(Sketcher.Constraint("Vertical", 3, 3, 7, 3))
sketch7.addConstraint(Sketcher.Constraint("Vertical", 5, 3, 10, 3))
sketch7.addConstraint(Sketcher.Constraint("Vertical", 8, 3, 12, 3))
sketch7.addConstraint(Sketcher.Constraint("Diameter", 0, Q("0.2 in")))
sketch7.addConstraint(Sketcher.Constraint("DistanceY", -1, 1, 0, 3, Q("5.8 in")))
sketch7.addConstraint(Sketcher.Constraint("DistanceY", -1, 1, 1, 3, Q("6.788709 mm")))
sketch7.addConstraint(Sketcher.Constraint("DistanceY", -1, 1, 2, 3, Q("136.448049 mm")))
sketch7.addConstraint(Sketcher.Constraint("DistanceX", 4, 3, -1, 1, Q("99.114141 mm")))
sketch7.addConstraint(Sketcher.Constraint("DistanceY", 4, 3, 3, 3, Q("27.454612 mm")))
sketch7.addConstraint(Sketcher.Constraint("DistanceX", -1, 1, 2, 3, Q("55.543787 mm")))
sketch7.addConstraint(Sketcher.Constraint("DistanceY", -1, 1, 10, 3, Q("57.891073 mm")))
pocket4 = body.newObject("PartDesign::Pocket", "Pocket003")
pocket4.Profile = sketch7
pocket4.Length = Q("0.2 in")
pocket4.Reversed = True

# Sketch on YZ plane
sketch8 = body.newObject("Sketcher::SketchObject", "Sketch007")
sketch8.AttachmentSupport = (doc.getObject("YZ_Plane"), [""])
sketch8.MapMode = "FlatFace"
sketch8.AttachmentOffset = App.Placement(Vector(0, 0, 107.981915), App.Rotation())
sketch8.addGeometry(Part.Circle(Vector(2.5, -6.7, 0), Vector(0, 0, 1), 1.6), False)
sketch8.addConstraint(Sketcher.Constraint("DistanceX", -1, 1, 0, 3, Q("0.1 in")))
sketch8.addConstraint(Sketcher.Constraint("Diameter", 0, Q("3.1 mm")))
sketch8.addConstraint(Sketcher.Constraint("DistanceY", 0, 3, -1, 1, Q("6.677095 mm")))
pocket5 = body.newObject("PartDesign::Pocket", "Pocket004")
pocket5.Profile = sketch8
pocket5.Length = Q("8.85 in")

# Sketch on XY plane
sketch9 = body.newObject("Sketcher::SketchObject", "Sketch008")
sketch9.AttachmentSupport = (doc.getObject("XY_Plane"), [""])
sketch9.MapMode = "FlatFace"
sketch9.AttachmentOffset = App.Placement(Vector(0, 0, 90.350905), App.Rotation())
sketch9.addGeometry(Part.LineSegment(Vector(115.2, -15.6, 0), Vector(112.2, -15.6, 0)), False)
sketch9.addGeometry(Part.LineSegment(Vector(112.2, -15.6, 0), Vector(112.2, -19.2, 0)), False)
sketch9.addGeometry(Part.LineSegment(Vector(112.2, -19.2, 0), Vector(114.6, -22.7, 0)), False)
sketch9.addGeometry(Part.LineSegment(Vector(114.6, -22.7, 0), Vector(114.6, -25.8, 0)), False)
sketch9.addGeometry(Part.LineSegment(Vector(114.6, -25.8, 0), Vector(114.1, -25.9, 0)), False)
sketch9.addGeometry(Part.LineSegment(Vector(114.1, -25.9, 0), Vector(114.1, -26.5, 0)), False)
sketch9.addGeometry(Part.LineSegment(Vector(114.1, -26.5, 0), Vector(114.6, -26.6, 0)), False)
sketch9.addGeometry(Part.LineSegment(Vector(114.6, -26.6, 0), Vector(115.2, -26.6, 0)), False)
sketch9.addGeometry(Part.LineSegment(Vector(115.2, -26.6, 0), Vector(115.2, -15.6, 0)), False)
sketch9.addGeometry(Part.LineSegment(Vector(-114.6, -25.8, 0), Vector(-114.6, -22.7, 0)), False)
sketch9.addGeometry(Part.LineSegment(Vector(-114.6, -22.7, 0), Vector(-112.2, -19.2, 0)), False)
sketch9.addGeometry(Part.LineSegment(Vector(-112.2, -19.2, 0), Vector(-112.2, -15.6, 0)), False)
sketch9.addGeometry(Part.LineSegment(Vector(-112.2, -15.6, 0), Vector(-115.2, -15.6, 0)), False)
sketch9.addGeometry(Part.LineSegment(Vector(-115.2, -15.6, 0), Vector(-115.2, -26.6, 0)), False)
sketch9.addGeometry(Part.LineSegment(Vector(-115.2, -26.6, 0), Vector(-114.6, -26.6, 0)), False)
sketch9.addGeometry(Part.LineSegment(Vector(-114.6, -26.6, 0), Vector(-114.1, -26.5, 0)), False)
sketch9.addGeometry(Part.LineSegment(Vector(-114.1, -26.5, 0), Vector(-114.1, -25.9, 0)), False)
sketch9.addGeometry(Part.LineSegment(Vector(-114.1, -25.9, 0), Vector(-114.6, -25.8, 0)), False)
sketch9.addConstraint(Sketcher.Constraint("Coincident", 0, 2, 1, 1))
sketch9.addConstraint(Sketcher.Constraint("Coincident", 1, 2, 2, 1))
sketch9.addConstraint(Sketcher.Constraint("Coincident", 2, 2, 3, 1))
sketch9.addConstraint(Sketcher.Constraint("Coincident", 3, 2, 4, 1))
sketch9.addConstraint(Sketcher.Constraint("Coincident", 4, 2, 5, 1))
sketch9.addConstraint(Sketcher.Constraint("Coincident", 5, 2, 6, 1))
sketch9.addConstraint(Sketcher.Constraint("Coincident", 6, 2, 7, 1))
sketch9.addConstraint(Sketcher.Constraint("Coincident", 7, 2, 8, 1))
sketch9.addConstraint(Sketcher.Constraint("Coincident", 8, 2, 0, 1))
sketch9.addConstraint(Sketcher.Constraint("Coincident", 9, 2, 10, 1))
sketch9.addConstraint(Sketcher.Constraint("Coincident", 10, 2, 11, 1))
sketch9.addConstraint(Sketcher.Constraint("Coincident", 11, 2, 12, 1))
sketch9.addConstraint(Sketcher.Constraint("Coincident", 12, 2, 13, 1))
sketch9.addConstraint(Sketcher.Constraint("Coincident", 13, 2, 14, 1))
sketch9.addConstraint(Sketcher.Constraint("Coincident", 14, 2, 15, 1))
sketch9.addConstraint(Sketcher.Constraint("Coincident", 15, 2, 16, 1))
sketch9.addConstraint(Sketcher.Constraint("Coincident", 16, 2, 17, 1))
sketch9.addConstraint(Sketcher.Constraint("Coincident", 17, 2, 9, 1))
sketch9.addConstraint(Sketcher.Constraint("Horizontal", 0))
sketch9.addConstraint(Sketcher.Constraint("Vertical", 1))
sketch9.addConstraint(Sketcher.Constraint("Vertical", 3))
sketch9.addConstraint(Sketcher.Constraint("Vertical", 5))
sketch9.addConstraint(Sketcher.Constraint("Horizontal", 7))
sketch9.addConstraint(Sketcher.Constraint("Vertical", 8))
sketch9.addConstraint(Sketcher.Constraint("Vertical", 9))
sketch9.addConstraint(Sketcher.Constraint("Vertical", 11))
sketch9.addConstraint(Sketcher.Constraint("Horizontal", 12))
sketch9.addConstraint(Sketcher.Constraint("Vertical", 13))
sketch9.addConstraint(Sketcher.Constraint("Horizontal", 14))
sketch9.addConstraint(Sketcher.Constraint("Vertical", 16))
sketch9.addConstraint(Sketcher.Constraint("Symmetric", 2, 2, 9, 2, -2))
sketch9.addConstraint(Sketcher.Constraint("Symmetric", 1, 2, 10, 2, -2))
sketch9.addConstraint(Sketcher.Constraint("Symmetric", 8, 2, 12, 2, -2))
sketch9.addConstraint(Sketcher.Constraint("Symmetric", 6, 2, 14, 2, -2))
sketch9.addConstraint(Sketcher.Constraint("Symmetric", 5, 2, 15, 2, -2))
sketch9.addConstraint(Sketcher.Constraint("Parallel", 4, 15))
sketch9.addConstraint(Sketcher.Constraint("Parallel", 6, 17))
sketch9.addConstraint(Sketcher.Constraint("Horizontal", 4, 2, 16, 2))
sketch9.addConstraint(Sketcher.Constraint("Vertical", 3, 2, 6, 2))
sketch9.addConstraint(Sketcher.Constraint("Angle", 4, Q("-168 deg")))
sketch9.addConstraint(Sketcher.Constraint("DistanceX", 0, 2, 0, 1, Q("0.12 in")))
sketch9.addConstraint(Sketcher.Constraint("DistanceY", 1, 2, 1, 1, Q("0.14 in")))
sketch9.addConstraint(Sketcher.Constraint("DistanceX", 7, 1, 7, 2, Q("0.025 in")))
sketch9.addConstraint(Sketcher.Constraint("DistanceY", 2, 2, 1, 2, Q("0.14 in")))
sketch9.addConstraint(Sketcher.Constraint("DistanceX", 4, 2, 3, 2, Q("0.02 in")))
sketch9.addConstraint(Sketcher.Constraint("DistanceY", 3, 2, 3, 1, Q("3.03287 mm")))
sketch9.addConstraint(Sketcher.Constraint("DistanceY", 8, 1, 8, 2, Q("10.93713 mm")))
sketch9.addConstraint(Sketcher.Constraint("DistanceX", -1, 1, 0, 2, Q("112.198261 mm")))
sketch9.addConstraint(Sketcher.Constraint("DistanceY", 4, 2, -1, 1, Q("25.886331 mm")))
pad4 = body.newObject("PartDesign::Pad", "Pad003")
pad4.Profile = sketch9
pad4.Length = Q("0.4 in")
pad4.Reversed = True

# Sketch on XY plane
sketch10 = body.newObject("Sketcher::SketchObject", "Sketch009")
sketch10.AttachmentSupport = (doc.getObject("XY_Plane"), [""])
sketch10.MapMode = "FlatFace"
sketch10.AttachmentOffset = App.Placement(Vector(0, 0, 90.350905), App.Rotation())
sketch10.addGeometry(Part.LineSegment(Vector(115.2, -15.6, 0), Vector(112.2, -7.8, 0)), False)
sketch10.addGeometry(Part.LineSegment(Vector(112.2, -7.8, 0), Vector(112.2, -15.6, 0)), False)
sketch10.addGeometry(Part.LineSegment(Vector(112.2, -15.6, 0), Vector(115.2, -15.6, 0)), False)
sketch10.addGeometry(Part.LineSegment(Vector(-115.2, -15.6, 0), Vector(-112.2, -15.6, 0)), False)
sketch10.addGeometry(Part.LineSegment(Vector(-112.2, -15.6, 0), Vector(-112.2, -7.8, 0)), False)
sketch10.addGeometry(Part.LineSegment(Vector(-112.2, -7.8, 0), Vector(-115.2, -15.6, 0)), False)
sketch10.addConstraint(Sketcher.Constraint("Coincident", 0, 2, 1, 1))
sketch10.addConstraint(Sketcher.Constraint("Coincident", 1, 2, 2, 1))
sketch10.addConstraint(Sketcher.Constraint("Coincident", 2, 2, 0, 1))
sketch10.addConstraint(Sketcher.Constraint("Coincident", 3, 2, 4, 1))
sketch10.addConstraint(Sketcher.Constraint("Coincident", 4, 2, 5, 1))
sketch10.addConstraint(Sketcher.Constraint("Coincident", 5, 2, 3, 1))
sketch10.addConstraint(Sketcher.Constraint("Vertical", 1))
sketch10.addConstraint(Sketcher.Constraint("Horizontal", 2))
sketch10.addConstraint(Sketcher.Constraint("Horizontal", 3))
sketch10.addConstraint(Sketcher.Constraint("Vertical", 4))
sketch10.addConstraint(Sketcher.Constraint("Symmetric", 1, 2, 3, 2, -2))
sketch10.addConstraint(Sketcher.Constraint("Horizontal", 0, 2, 4, 2))
sketch10.addConstraint(Sketcher.Constraint("Equal", 2, 3))
sketch10.addConstraint(Sketcher.Constraint("DistanceX", 2, 1, 2, 2, Q("0.12 in")))
sketch10.addConstraint(Sketcher.Constraint("DistanceY", 1, 2, 1, 1, Q("7.816741 mm")))
sketch10.addConstraint(Sketcher.Constraint("DistanceX", -1, 1, 0, 2, Q("112.198261 mm")))
sketch10.addConstraint(Sketcher.Constraint("DistanceY", 0, 2, -1, 1, Q("7.816741 mm")))
pad5 = body.newObject("PartDesign::Pad", "Pad004")
pad5.Profile = sketch10
pad5.Length = Q("0.4 in")
pad5.Reversed = True

# Sketch on XZ plane
sketch11 = body.newObject("Sketcher::SketchObject", "Sketch010")
sketch11.AttachmentSupport = (doc.getObject("XZ_Plane"), [""])
sketch11.MapMode = "FlatFace"
sketch11.AttachmentOffset = App.Placement(Vector(0, 0, -0.2 * 25.4), App.Rotation())
sketch11.addGeometry(Part.Circle(Vector(-91.6, 18.9, 0), Vector(0, 0, 1), 1.5), False)
sketch11.addGeometry(Part.Circle(Vector(-91.6, 109.7, 0), Vector(0, 0, 1), 1.5), False)
sketch11.addGeometry(Part.Circle(Vector(3.2, 109.7, 0), Vector(0, 0, 1), 1.5), False)
sketch11.addGeometry(Part.Circle(Vector(3.1, 19, 0), Vector(0, 0, 1), 1.5), False)
sketch11.addConstraint(Sketcher.Constraint("Equal", 0, 1))
sketch11.addConstraint(Sketcher.Constraint("Equal", 1, 2))
sketch11.addConstraint(Sketcher.Constraint("Equal", 2, 3))
sketch11.addConstraint(Sketcher.Constraint("Horizontal", 1, 3, 2, 3))
sketch11.addConstraint(Sketcher.Constraint("Vertical", 0, 3, 1, 3))
sketch11.addConstraint(Sketcher.Constraint("Diameter", 0, Q("3 mm")))
sketch11.addConstraint(Sketcher.Constraint("DistanceY", 0, 3, 1, 3, Q("90.79 mm")))
sketch11.addConstraint(Sketcher.Constraint("DistanceX", 1, 3, 2, 3, Q("94.854 mm")))
sketch11.addConstraint(Sketcher.Constraint("DistanceX", 3, 3, 2, 3, Q("0.11339 mm")))
sketch11.addConstraint(Sketcher.Constraint("DistanceY", 3, 3, 2, 3, Q("90.676609 mm")))
sketch11.addConstraint(Sketcher.Constraint("DistanceX", 0, 3, -1, 1, Q("91.646085 mm")))
sketch11.addConstraint(Sketcher.Constraint("DistanceY", -1, 1, 0, 3, Q("18.920905 mm")))
pocket6 = body.newObject("PartDesign::Pocket", "Pocket005")
pocket6.Profile = sketch11
pocket6.Length = Q("0.2 in")
pocket6.Reversed = True

doc.recompute()
